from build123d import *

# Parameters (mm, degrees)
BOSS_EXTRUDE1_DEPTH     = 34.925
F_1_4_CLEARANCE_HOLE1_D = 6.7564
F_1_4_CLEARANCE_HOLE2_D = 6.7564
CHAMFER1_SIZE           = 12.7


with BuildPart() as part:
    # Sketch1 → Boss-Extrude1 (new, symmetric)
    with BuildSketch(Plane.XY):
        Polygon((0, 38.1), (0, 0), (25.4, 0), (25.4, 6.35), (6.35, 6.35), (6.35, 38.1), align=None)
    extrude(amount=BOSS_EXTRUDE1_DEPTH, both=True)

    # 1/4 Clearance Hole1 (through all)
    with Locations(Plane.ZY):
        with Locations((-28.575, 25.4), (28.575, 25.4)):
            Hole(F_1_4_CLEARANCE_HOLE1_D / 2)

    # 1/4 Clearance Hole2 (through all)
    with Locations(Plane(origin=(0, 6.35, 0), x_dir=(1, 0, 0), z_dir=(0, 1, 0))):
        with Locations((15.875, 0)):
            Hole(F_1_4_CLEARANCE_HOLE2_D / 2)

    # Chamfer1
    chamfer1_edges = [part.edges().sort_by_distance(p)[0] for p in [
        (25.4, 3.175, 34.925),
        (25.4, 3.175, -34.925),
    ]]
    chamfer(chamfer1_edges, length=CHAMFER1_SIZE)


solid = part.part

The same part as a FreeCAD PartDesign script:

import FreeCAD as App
import Part
import Sketcher

V = App.Vector
Q = App.Units.Quantity


def edges_at(feature, points):
    """Names of the edges that pass closest to the given points."""
    edges = feature.Shape.Edges
    near = lambda p: min(range(len(edges)), key=lambda i: edges[i].distToShape(Part.Vertex(*p))[0])
    return sorted({f"Edge{near(p) + 1}" for p in points})


def add_polygon(sketch, points):
    """Adds a closed chain of lines whose ends are joined by coincident constraints."""
    first, n = sketch.GeometryCount, len(points)
    for a, b in zip(points, points[1:] + points[:1]):
        sketch.addGeometry(Part.LineSegment(App.Vector(*a, 0), App.Vector(*b, 0)), False)
    for i in range(n):
        sketch.addConstraint(Sketcher.Constraint("Coincident", first + i, 2, first + (i + 1) % n, 1))

doc = App.newDocument("Part")
params = doc.addObject("Spreadsheet::Sheet", "Params")
for row, (alias, value) in enumerate([
    ("sketch1_width", "1 in"),
    ("sketch1_height", "1.5 in"),
    ("sketch1_width2", "0.75 in"),
    ("pad1_length", "2.75 in"),
    ("sketch2_diameter", "0.266 in"),
    ("hole_diameter", "0.266 in"),
    ("sketch3_diameter", "0.266 in"),
    ("hole2_diameter", "0.266 in"),
    ("chamfer_size", "0.5 in"),
], start=1):
    params.set(f"A{row}", alias)
    params.set(f"B{row}", "=" + value)
    params.setAlias(f"B{row}", alias)

body = doc.addObject("PartDesign::Body", "Body")

# Sketch on XY plane
sketch1 = body.newObject("Sketcher::SketchObject", "Sketch")
sketch1.AttachmentSupport = (doc.getObject("XY_Plane"), [""])
sketch1.MapMode = "FlatFace"
add_polygon(sketch1, [(0, 38), (0, 0), (25, 0), (25, 6), (6, 6), (6, 38)])  # lines 0-5
sketch1.addConstraint([
    Sketcher.Constraint("Vertical", 0),
    Sketcher.Constraint("Horizontal", 1),
    Sketcher.Constraint("Vertical", 2),
    Sketcher.Constraint("Horizontal", 3),
    Sketcher.Constraint("Vertical", 4),
    Sketcher.Constraint("Horizontal", 5),
    Sketcher.Constraint("Coincident", 0, 2, -1, 1),
    Sketcher.Constraint("Equal", 5, 2),
    Sketcher.Constraint("DistanceX", 1, 1, 1, 2, Q("1 in")),
    Sketcher.Constraint("DistanceY", 0, 2, 0, 1, Q("1.5 in")),
    Sketcher.Constraint("DistanceX", 3, 2, 3, 1, Q("0.75 in")),
])
sketch1.setExpression("Constraints[14]", "Params.sketch1_width")
sketch1.setExpression("Constraints[15]", "Params.sketch1_height")
sketch1.setExpression("Constraints[16]", "Params.sketch1_width2")
pad1 = body.newObject("PartDesign::Pad", "Pad")
pad1.Profile = sketch1
pad1.setExpression("Length", "Params.pad1_length")
pad1.Midplane = True

# Sketch on YZ plane
sketch2 = body.newObject("Sketcher::SketchObject", "Sketch001")
sketch2.AttachmentSupport = (doc.getObject("YZ_Plane"), [""])
sketch2.MapMode = "FlatFace"
sketch2.addGeometry([
    Part.Circle(V(25.4, -28.6, 0), V(0, 0, 1), 3.4),
    Part.Circle(V(25.4, 28.6, 0), V(0, 0, 1), 3.4),
], False)
sketch2.addConstraint([
    Sketcher.Constraint("Equal", 0, 1),
    Sketcher.Constraint("Symmetric", 0, 3, 1, 3, -1),
    Sketcher.Constraint("Diameter", 0, Q("0.266 in")),
    Sketcher.Constraint("DistanceX", -1, 1, 0, 3, Q("1 in")),
    Sketcher.Constraint("DistanceY", 0, 3, 1, 3, Q("2.25 in")),
])
sketch2.setExpression("Constraints[2]", "Params.sketch2_diameter")
doc.recompute()
hole = body.newObject("PartDesign::Hole", "Hole")
hole.Profile = sketch2
hole.ThreadType = "None"
hole.setExpression("Diameter", "Params.hole_diameter")
hole.DepthType = "ThroughAll"
hole.Reversed = True

# Sketch on XZ plane
sketch3 = body.newObject("Sketcher::SketchObject", "Sketch002")
sketch3.AttachmentSupport = (doc.getObject("XZ_Plane"), [""])
sketch3.MapMode = "FlatFace"
sketch3.AttachmentOffset = App.Placement(V(0, 0, -0.25 * 25.4), App.Rotation())
sketch3.addGeometry(Part.Circle(V(15.9, 0, 0), V(0, 0, 1), 3.4), False)
sketch3.addConstraint([
    Sketcher.Constraint("PointOnObject", 0, 3, -1),
    Sketcher.Constraint("Diameter", 0, Q("0.266 in")),
    Sketcher.Constraint("DistanceX", -1, 1, 0, 3, Q("0.625 in")),
])
sketch3.setExpression("Constraints[1]", "Params.sketch3_diameter")
doc.recompute()
hole2 = body.newObject("PartDesign::Hole", "Hole001")
hole2.Profile = sketch3
hole2.ThreadType = "None"
hole2.setExpression("Diameter", "Params.hole2_diameter")
hole2.DepthType = "ThroughAll"
hole2.Reversed = True
doc.recompute()

chamfer = body.newObject("PartDesign::Chamfer", "Chamfer")
chamfer.Base = (hole2, edges_at(hole2, [(25.4, 3.175, 34.925), (25.4, 3.175, -34.925)]))
chamfer.setExpression("Size", "Params.chamfer_size")

doc.recompute()
